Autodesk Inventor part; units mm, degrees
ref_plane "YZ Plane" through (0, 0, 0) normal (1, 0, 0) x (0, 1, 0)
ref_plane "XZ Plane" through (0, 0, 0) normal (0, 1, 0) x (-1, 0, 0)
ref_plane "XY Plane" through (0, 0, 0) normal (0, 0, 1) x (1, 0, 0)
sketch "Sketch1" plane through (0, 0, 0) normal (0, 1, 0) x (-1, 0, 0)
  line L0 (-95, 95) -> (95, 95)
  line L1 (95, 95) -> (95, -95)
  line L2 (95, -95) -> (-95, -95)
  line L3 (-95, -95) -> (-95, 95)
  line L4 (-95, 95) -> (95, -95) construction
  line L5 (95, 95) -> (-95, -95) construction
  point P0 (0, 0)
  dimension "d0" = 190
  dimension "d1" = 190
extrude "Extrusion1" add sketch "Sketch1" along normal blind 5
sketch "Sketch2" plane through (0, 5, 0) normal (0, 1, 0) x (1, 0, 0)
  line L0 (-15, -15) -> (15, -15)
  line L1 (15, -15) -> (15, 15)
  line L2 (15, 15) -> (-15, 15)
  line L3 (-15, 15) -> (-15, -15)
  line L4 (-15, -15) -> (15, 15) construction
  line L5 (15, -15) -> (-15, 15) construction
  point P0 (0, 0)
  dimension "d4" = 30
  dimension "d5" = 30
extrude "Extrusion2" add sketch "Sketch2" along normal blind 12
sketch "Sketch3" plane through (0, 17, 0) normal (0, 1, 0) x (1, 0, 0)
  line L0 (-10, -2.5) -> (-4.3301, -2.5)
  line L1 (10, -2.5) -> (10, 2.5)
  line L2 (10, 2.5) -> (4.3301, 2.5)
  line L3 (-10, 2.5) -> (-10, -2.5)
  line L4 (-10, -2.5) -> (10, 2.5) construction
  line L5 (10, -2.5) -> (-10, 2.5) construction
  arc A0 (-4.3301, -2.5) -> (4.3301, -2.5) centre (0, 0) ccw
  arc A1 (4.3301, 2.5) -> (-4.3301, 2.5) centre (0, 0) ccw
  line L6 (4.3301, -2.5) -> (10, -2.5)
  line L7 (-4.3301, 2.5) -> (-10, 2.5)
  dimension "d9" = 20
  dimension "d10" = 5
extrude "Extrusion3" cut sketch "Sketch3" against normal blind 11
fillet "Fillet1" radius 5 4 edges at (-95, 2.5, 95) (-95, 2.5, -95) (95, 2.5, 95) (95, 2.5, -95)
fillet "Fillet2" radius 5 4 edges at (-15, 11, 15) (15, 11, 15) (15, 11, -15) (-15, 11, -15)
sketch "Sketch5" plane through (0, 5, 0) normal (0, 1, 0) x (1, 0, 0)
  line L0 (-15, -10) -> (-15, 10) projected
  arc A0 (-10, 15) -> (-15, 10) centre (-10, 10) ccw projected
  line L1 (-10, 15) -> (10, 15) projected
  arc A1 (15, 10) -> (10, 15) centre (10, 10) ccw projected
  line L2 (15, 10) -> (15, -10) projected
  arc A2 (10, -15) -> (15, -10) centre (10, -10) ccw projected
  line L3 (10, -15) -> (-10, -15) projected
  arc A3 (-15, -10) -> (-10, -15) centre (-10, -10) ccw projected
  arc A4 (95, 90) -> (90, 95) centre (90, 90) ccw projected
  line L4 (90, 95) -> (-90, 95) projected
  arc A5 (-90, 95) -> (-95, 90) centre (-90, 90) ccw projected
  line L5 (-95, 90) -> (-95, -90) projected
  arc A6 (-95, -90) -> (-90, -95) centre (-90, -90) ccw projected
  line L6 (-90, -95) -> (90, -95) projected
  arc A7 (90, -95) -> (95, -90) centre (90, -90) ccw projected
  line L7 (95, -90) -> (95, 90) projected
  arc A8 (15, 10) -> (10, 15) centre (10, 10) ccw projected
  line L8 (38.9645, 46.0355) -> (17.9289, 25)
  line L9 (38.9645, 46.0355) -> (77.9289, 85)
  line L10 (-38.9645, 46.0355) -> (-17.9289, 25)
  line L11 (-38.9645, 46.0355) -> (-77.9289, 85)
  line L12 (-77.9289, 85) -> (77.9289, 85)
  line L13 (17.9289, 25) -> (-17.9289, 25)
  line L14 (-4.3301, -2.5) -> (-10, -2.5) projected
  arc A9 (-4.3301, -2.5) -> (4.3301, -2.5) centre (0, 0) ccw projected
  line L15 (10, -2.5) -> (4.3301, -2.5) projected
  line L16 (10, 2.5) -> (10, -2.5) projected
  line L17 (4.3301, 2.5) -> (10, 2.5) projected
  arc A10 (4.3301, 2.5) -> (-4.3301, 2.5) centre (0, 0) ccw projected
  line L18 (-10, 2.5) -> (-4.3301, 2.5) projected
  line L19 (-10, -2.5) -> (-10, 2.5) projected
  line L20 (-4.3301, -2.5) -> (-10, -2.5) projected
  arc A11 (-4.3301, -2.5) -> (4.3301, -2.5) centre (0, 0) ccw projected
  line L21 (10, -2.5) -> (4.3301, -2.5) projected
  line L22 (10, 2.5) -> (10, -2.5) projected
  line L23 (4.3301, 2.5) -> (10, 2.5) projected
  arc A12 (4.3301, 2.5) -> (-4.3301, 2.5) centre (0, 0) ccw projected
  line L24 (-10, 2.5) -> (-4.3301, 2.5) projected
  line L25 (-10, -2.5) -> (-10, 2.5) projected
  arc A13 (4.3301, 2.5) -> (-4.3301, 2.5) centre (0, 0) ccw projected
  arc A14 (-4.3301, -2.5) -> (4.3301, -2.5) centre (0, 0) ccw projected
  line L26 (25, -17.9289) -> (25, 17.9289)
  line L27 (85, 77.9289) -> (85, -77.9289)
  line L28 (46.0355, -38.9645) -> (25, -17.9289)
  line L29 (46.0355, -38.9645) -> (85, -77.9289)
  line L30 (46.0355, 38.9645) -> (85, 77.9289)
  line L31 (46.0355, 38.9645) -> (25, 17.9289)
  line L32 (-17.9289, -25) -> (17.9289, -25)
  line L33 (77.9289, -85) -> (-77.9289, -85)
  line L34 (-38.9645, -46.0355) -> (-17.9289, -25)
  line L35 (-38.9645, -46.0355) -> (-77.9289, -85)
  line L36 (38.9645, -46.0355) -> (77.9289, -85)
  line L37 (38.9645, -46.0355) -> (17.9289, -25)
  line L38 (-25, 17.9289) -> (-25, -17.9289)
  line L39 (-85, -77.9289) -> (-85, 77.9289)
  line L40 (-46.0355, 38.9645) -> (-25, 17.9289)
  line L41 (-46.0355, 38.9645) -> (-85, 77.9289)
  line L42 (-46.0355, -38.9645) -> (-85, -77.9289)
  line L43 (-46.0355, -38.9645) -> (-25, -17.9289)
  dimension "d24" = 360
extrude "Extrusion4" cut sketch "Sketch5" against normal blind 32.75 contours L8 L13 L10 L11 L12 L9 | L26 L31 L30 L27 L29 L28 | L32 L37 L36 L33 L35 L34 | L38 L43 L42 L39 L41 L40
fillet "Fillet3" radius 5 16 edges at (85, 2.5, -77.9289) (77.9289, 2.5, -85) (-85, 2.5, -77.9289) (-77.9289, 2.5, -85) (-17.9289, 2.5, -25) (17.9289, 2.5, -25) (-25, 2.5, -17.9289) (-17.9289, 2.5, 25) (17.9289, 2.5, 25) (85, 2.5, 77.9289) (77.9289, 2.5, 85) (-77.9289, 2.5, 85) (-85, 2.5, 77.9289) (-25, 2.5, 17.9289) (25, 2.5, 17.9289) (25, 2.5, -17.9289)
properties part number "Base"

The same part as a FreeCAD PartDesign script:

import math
import FreeCAD as App
import Part
import Sketcher
Q = App.Units.Quantity


def edges_at(feature, points):
    """Names of the edges that pass closest to the given points."""
    edges = feature.Shape.Edges
    near = lambda p: min(range(len(edges)), key=lambda i: edges[i].distToShape(Part.Vertex(*p))[0])
    return sorted({f"Edge{near(p) + 1}" for p in points})

doc = App.newDocument("Part")
body = doc.addObject("PartDesign::Body", "Body")

# Sketch on XZ plane
sketch1 = doc.addObject("Sketcher::SketchObject", "Sketch")
body.addObject(sketch1)
sketch1.AttachmentSupport = (doc.XZ_Plane, [""])
sketch1.MapMode = "FlatFace"
sketch1.addGeometry([
    Part.LineSegment(App.Vector(-95, 95, 0), App.Vector(95, 95, 0)),
    Part.LineSegment(App.Vector(95, 95, 0), App.Vector(95, -95, 0)),
    Part.LineSegment(App.Vector(95, -95, 0), App.Vector(-95, -95, 0)),
    Part.LineSegment(App.Vector(-95, -95, 0), App.Vector(-95, 95, 0)),
], False)
sketch1.addConstraint([
    Sketcher.Constraint("Coincident", 0, 2, 1, 1),
    Sketcher.Constraint("Coincident", 1, 2, 2, 1),
    Sketcher.Constraint("Coincident", 2, 2, 3, 1),
    Sketcher.Constraint("Coincident", 3, 2, 0, 1),
    Sketcher.Constraint("Horizontal", 0),
    Sketcher.Constraint("Vertical", 1),
    Sketcher.Constraint("Horizontal", 2),
    Sketcher.Constraint("Vertical", 3),
    Sketcher.Constraint("Symmetric", 0, 2, 2, 2, -1, 1),
    Sketcher.Constraint("Equal", 2, 1),
    Sketcher.Constraint("DistanceX", 0, 1, 0, 2, Q("190 mm")),
])
pad1 = doc.addObject("PartDesign::Pad", "Pad")
body.addObject(pad1)
pad1.Profile = sketch1
pad1.Length = 5
pad1.Reversed = True

# Sketch on XZ plane
sketch2 = doc.addObject("Sketcher::SketchObject", "Sketch001")
body.addObject(sketch2)
sketch2.AttachmentSupport = (doc.XZ_Plane, [""])
sketch2.MapMode = "FlatFace"
sketch2.AttachmentOffset = App.Placement(App.Vector(0, 0, -5), App.Rotation())
sketch2.addGeometry([
    Part.LineSegment(App.Vector(-15, -15, 0), App.Vector(-15, 15, 0)),
    Part.LineSegment(App.Vector(-15, 15, 0), App.Vector(15, 15, 0)),
    Part.LineSegment(App.Vector(15, 15, 0), App.Vector(15, -15, 0)),
    Part.LineSegment(App.Vector(15, -15, 0), App.Vector(-15, -15, 0)),
], False)
sketch2.addConstraint([
    Sketcher.Constraint("Coincident", 0, 2, 1, 1),
    Sketcher.Constraint("Coincident", 1, 2, 2, 1),
    Sketcher.Constraint("Coincident", 2, 2, 3, 1),
    Sketcher.Constraint("Coincident", 3, 2, 0, 1),
    Sketcher.Constraint("Vertical", 0),
    Sketcher.Constraint("Horizontal", 1),
    Sketcher.Constraint("Vertical", 2),
    Sketcher.Constraint("Horizontal", 3),
    Sketcher.Constraint("Symmetric", 0, 2, 2, 2, -1, 1),
    Sketcher.Constraint("Equal", 3, 0),
    Sketcher.Constraint("DistanceX", 1, 1, 1, 2, Q("30 mm")),
])
pad2 = doc.addObject("PartDesign::Pad", "Pad001")
body.addObject(pad2)
pad2.Profile = sketch2
pad2.Length = 12
pad2.Reversed = True

# Sketch on XZ plane
sketch3 = doc.addObject("Sketcher::SketchObject", "Sketch002")
body.addObject(sketch3)
sketch3.AttachmentSupport = (doc.XZ_Plane, [""])
sketch3.MapMode = "FlatFace"
sketch3.AttachmentOffset = App.Placement(App.Vector(0, 0, -17), App.Rotation())
sketch3.addGeometry([
    Part.LineSegment(App.Vector(-10, -2.5, 0), App.Vector(-10, 2.5, 0)),  # 0
    Part.LineSegment(App.Vector(-10, 2.5, 0), App.Vector(-4.3, 2.5, 0)),  # 1
    Part.ArcOfCircle(Part.Circle(App.Vector(0, 0, 0), App.Vector(0, 0, 1), 5), math.radians(30), math.radians(150)),  # 2
    Part.LineSegment(App.Vector(4.3, 2.5, 0), App.Vector(10, 2.5, 0)),  # 3
    Part.LineSegment(App.Vector(10, 2.5, 0), App.Vector(10, -2.5, 0)),  # 4
    Part.LineSegment(App.Vector(10, -2.5, 0), App.Vector(4.3, -2.5, 0)),  # 5
    Part.ArcOfCircle(Part.Circle(App.Vector(0, 0, 0), App.Vector(0, 0, 1), 5), math.radians(-150), math.radians(-30)),  # 6
    Part.LineSegment(App.Vector(-4.3, -2.5, 0), App.Vector(-10, -2.5, 0)),  # 7
], False)
sketch3.addConstraint([
    Sketcher.Constraint("Coincident", 0, 2, 1, 1),
    Sketcher.Constraint("Coincident", 1, 2, 2, 2),
    Sketcher.Constraint("Coincident", 2, 1, 3, 1),
    Sketcher.Constraint("Coincident", 3, 2, 4, 1),
    Sketcher.Constraint("Coincident", 4, 2, 5, 1),
    Sketcher.Constraint("Coincident", 5, 2, 6, 2),
    Sketcher.Constraint("Coincident", 6, 1, 7, 1),
    Sketcher.Constraint("Coincident", 7, 2, 0, 1),
    Sketcher.Constraint("Vertical", 0),
    Sketcher.Constraint("Horizontal", 1),
    Sketcher.Constraint("Horizontal", 3),
    Sketcher.Constraint("Vertical", 4),
    Sketcher.Constraint("Horizontal", 5),
    Sketcher.Constraint("Horizontal", 7),
    Sketcher.Constraint("Coincident", 2, 3, -1, 1),
    Sketcher.Constraint("Coincident", 6, 3, -1, 1),
    Sketcher.Constraint("Equal", 2, 6),
    Sketcher.Constraint("Symmetric", 0, 2, 4, 2, -1, 1),
    Sketcher.Constraint("Horizontal", 1, 2, 2, 1),
    Sketcher.Constraint("Horizontal", 5, 2, 6, 1),
    Sketcher.Constraint("Radius", 2, Q("5 mm")),
    Sketcher.Constraint("DistanceY", 0, 1, 0, 2, Q("5 mm")),
    Sketcher.Constraint("DistanceX", 0, 2, 3, 2, Q("20 mm")),
])
pocket1 = doc.addObject("PartDesign::Pocket", "Pocket")
body.addObject(pocket1)
pocket1.Profile = sketch3
pocket1.Length = 11
pocket1.Reversed = True
doc.recompute()

fillet = doc.addObject("PartDesign::Fillet", "Fillet")
body.addObject(fillet)
fillet.Base = (pocket1, edges_at(pocket1, [
    (-95, 2.5, 95),
    (-95, 2.5, -95),
    (95, 2.5, 95),
    (95, 2.5, -95),
]))
fillet.Radius = 5
doc.recompute()

fillet2 = doc.addObject("PartDesign::Fillet", "Fillet001")
body.addObject(fillet2)
fillet2.Base = (fillet, edges_at(fillet, [
    (-15, 11, 15),
    (15, 11, 15),
    (15, 11, -15),
    (-15, 11, -15),
]))
fillet2.Radius = 5

# Sketch on XZ plane
sketch4 = doc.addObject("Sketcher::SketchObject", "Sketch003")
body.addObject(sketch4)
sketch4.AttachmentSupport = (doc.XZ_Plane, [""])
sketch4.MapMode = "FlatFace"
sketch4.AttachmentOffset = App.Placement(App.Vector(0, 0, -5), App.Rotation())
sketch4.addGeometry([
    Part.LineSegment(App.Vector(18, -25, 0), App.Vector(39, -46, 0)),  # 0
    Part.LineSegment(App.Vector(39, -46, 0), App.Vector(78, -85, 0)),  # 1
    Part.LineSegment(App.Vector(78, -85, 0), App.Vector(-78, -85, 0)),  # 2
    Part.LineSegment(App.Vector(-78, -85, 0), App.Vector(-39, -46, 0)),  # 3
    Part.LineSegment(App.Vector(-39, -46, 0), App.Vector(-18, -25, 0)),  # 4
    Part.LineSegment(App.Vector(-18, -25, 0), App.Vector(18, -25, 0)),  # 5
    Part.LineSegment(App.Vector(25, -18, 0), App.Vector(25, 18, 0)),  # 6
    Part.LineSegment(App.Vector(25, 18, 0), App.Vector(46, 39, 0)),  # 7
    Part.LineSegment(App.Vector(46, 39, 0), App.Vector(85, 78, 0)),  # 8
    Part.LineSegment(App.Vector(85, 78, 0), App.Vector(85, -78, 0)),  # 9
    Part.LineSegment(App.Vector(85, -78, 0), App.Vector(46, -39, 0)),  # 10
    Part.LineSegment(App.Vector(46, -39, 0), App.Vector(25, -18, 0)),  # 11
    Part.LineSegment(App.Vector(18, 25, 0), App.Vector(-18, 25, 0)),  # 12
    Part.LineSegment(App.Vector(-18, 25, 0), App.Vector(-39, 46, 0)),  # 13
    Part.LineSegment(App.Vector(-39, 46, 0), App.Vector(-78, 85, 0)),  # 14
    Part.LineSegment(App.Vector(-78, 85, 0), App.Vector(78, 85, 0)),  # 15
    Part.LineSegment(App.Vector(78, 85, 0), App.Vector(39, 46, 0)),  # 16
    Part.LineSegment(App.Vector(39, 46, 0), App.Vector(18, 25, 0)),  # 17
    Part.LineSegment(App.Vector(-25, 18, 0), App.Vector(-25, -18, 0)),  # 18
    Part.LineSegment(App.Vector(-25, -18, 0), App.Vector(-46, -39, 0)),  # 19
    Part.LineSegment(App.Vector(-46, -39, 0), App.Vector(-85, -78, 0)),  # 20
    Part.LineSegment(App.Vector(-85, -78, 0), App.Vector(-85, 78, 0)),  # 21
    Part.LineSegment(App.Vector(-85, 78, 0), App.Vector(-46, 39, 0)),  # 22
    Part.LineSegment(App.Vector(-46, 39, 0), App.Vector(-25, 18, 0)),  # 23
], False)
sketch4.addConstraint([
    Sketcher.Constraint("Coincident", 0, 2, 1, 1),
    Sketcher.Constraint("Coincident", 1, 2, 2, 1),
    Sketcher.Constraint("Coincident", 2, 2, 3, 1),
    Sketcher.Constraint("Coincident", 3, 2, 4, 1),
    Sketcher.Constraint("Coincident", 4, 2, 5, 1),
    Sketcher.Constraint("Coincident", 5, 2, 0, 1),
    Sketcher.Constraint("Coincident", 6, 2, 7, 1),
    Sketcher.Constraint("Coincident", 7, 2, 8, 1),
    Sketcher.Constraint("Coincident", 8, 2, 9, 1),
    Sketcher.Constraint("Coincident", 9, 2, 10, 1),
    Sketcher.Constraint("Coincident", 10, 2, 11, 1),
    Sketcher.Constraint("Coincident", 11, 2, 6, 1),
    Sketcher.Constraint("Coincident", 12, 2, 13, 1),
    Sketcher.Constraint("Coincident", 13, 2, 14, 1),
    Sketcher.Constraint("Coincident", 14, 2, 15, 1),
    Sketcher.Constraint("Coincident", 15, 2, 16, 1),
    Sketcher.Constraint("Coincident", 16, 2, 17, 1),
    Sketcher.Constraint("Coincident", 17, 2, 12, 1),
    Sketcher.Constraint("Coincident", 18, 2, 19, 1),
    Sketcher.Constraint("Coincident", 19, 2, 20, 1),
    Sketcher.Constraint("Coincident", 20, 2, 21, 1),
    Sketcher.Constraint("Coincident", 21, 2, 22, 1),
    Sketcher.Constraint("Coincident", 22, 2, 23, 1),
    Sketcher.Constraint("Coincident", 23, 2, 18, 1),
    Sketcher.Constraint("Horizontal", 2),
    Sketcher.Constraint("Horizontal", 5),
    Sketcher.Constraint("Vertical", 6),
    Sketcher.Constraint("Vertical", 9),
    Sketcher.Constraint("Horizontal", 12),
    Sketcher.Constraint("Horizontal", 15),
    Sketcher.Constraint("Vertical", 18),
    Sketcher.Constraint("Vertical", 21),
    Sketcher.Constraint("Symmetric", 5, 2, 12, 2, -1, 1),
    Sketcher.Constraint("Symmetric", 0, 2, 13, 2, -1, 1),
    Sketcher.Constraint("Symmetric", 1, 2, 14, 2, -1, 1),
    Sketcher.Constraint("Symmetric", 3, 2, 16, 2, -1, 1),
    Sketcher.Constraint("Symmetric", 6, 2, 18, 2, -1, 1),
    Sketcher.Constraint("Symmetric", 7, 2, 19, 2, -1, 1),
    Sketcher.Constraint("Symmetric", 8, 2, 20, 2, -1, 1),
    Sketcher.Constraint("Symmetric", 10, 2, 22, 2, -1, 1),
    Sketcher.Constraint("Symmetric", 0, 2, 3, 2, -2),
    Sketcher.Constraint("Symmetric", 10, 2, 19, 2, -2),
    Sketcher.Constraint("Parallel", 0, 1),
    Sketcher.Constraint("Perpendicular", 1, 3),
    Sketcher.Constraint("Parallel", 3, 4),
    Sketcher.Constraint("Parallel", 4, 7),
    Sketcher.Constraint("Parallel", 7, 8),
    Sketcher.Constraint("Perpendicular", 8, 10),
    Sketcher.Constraint("Parallel", 10, 11),
    Sketcher.Constraint("Perpendicular", 14, 16),
    Sketcher.Constraint("Parallel", 16, 17),
    Sketcher.Constraint("Perpendicular", 20, 22),
    Sketcher.Constraint("Parallel", 22, 23),
    Sketcher.Constraint("Horizontal", 11, 2, 18, 2),
    Sketcher.Constraint("Equal", 12, 6),
    Sketcher.Constraint("Equal", 15, 9),
    Sketcher.Constraint("Equal", 4, 7),
    Sketcher.Constraint("DistanceY", 1, 2, -1, 1, Q("85 mm")),
    Sketcher.Constraint("DistanceY", 4, 2, -1, 1, Q("25 mm")),
    Sketcher.Constraint("DistanceX", -1, 1, 6, 2, Q("25 mm")),
    Sketcher.Constraint("DistanceY", 0, 2, 7, 2, Q("85 mm")),
    Sketcher.Constraint("Distance", 1, Q("55.104 mm")),
])
pocket2 = doc.addObject("PartDesign::Pocket", "Pocket001")
body.addObject(pocket2)
pocket2.Profile = sketch4
pocket2.Length = 32.75
pocket2.Reversed = True
doc.recompute()

fillet3 = doc.addObject("PartDesign::Fillet", "Fillet002")
body.addObject(fillet3)
fillet3.Base = (pocket2, edges_at(pocket2, [
    (85, 2.5, -77.929),
    (77.929, 2.5, -85),
    (-85, 2.5, -77.929),
    (-77.929, 2.5, -85),
    (-17.929, 2.5, -25),
    (17.929, 2.5, -25),
    (-25, 2.5, -17.929),
    (-17.929, 2.5, 25),
    (17.929, 2.5, 25),
    (85, 2.5, 77.929),
    (77.929, 2.5, 85),
    (-77.929, 2.5, 85),
    (-85, 2.5, 77.929),
    (-25, 2.5, 17.929),
    (25, 2.5, 17.929),
    (25, 2.5, -17.929),
]))
fillet3.Radius = 5

doc.recompute()
